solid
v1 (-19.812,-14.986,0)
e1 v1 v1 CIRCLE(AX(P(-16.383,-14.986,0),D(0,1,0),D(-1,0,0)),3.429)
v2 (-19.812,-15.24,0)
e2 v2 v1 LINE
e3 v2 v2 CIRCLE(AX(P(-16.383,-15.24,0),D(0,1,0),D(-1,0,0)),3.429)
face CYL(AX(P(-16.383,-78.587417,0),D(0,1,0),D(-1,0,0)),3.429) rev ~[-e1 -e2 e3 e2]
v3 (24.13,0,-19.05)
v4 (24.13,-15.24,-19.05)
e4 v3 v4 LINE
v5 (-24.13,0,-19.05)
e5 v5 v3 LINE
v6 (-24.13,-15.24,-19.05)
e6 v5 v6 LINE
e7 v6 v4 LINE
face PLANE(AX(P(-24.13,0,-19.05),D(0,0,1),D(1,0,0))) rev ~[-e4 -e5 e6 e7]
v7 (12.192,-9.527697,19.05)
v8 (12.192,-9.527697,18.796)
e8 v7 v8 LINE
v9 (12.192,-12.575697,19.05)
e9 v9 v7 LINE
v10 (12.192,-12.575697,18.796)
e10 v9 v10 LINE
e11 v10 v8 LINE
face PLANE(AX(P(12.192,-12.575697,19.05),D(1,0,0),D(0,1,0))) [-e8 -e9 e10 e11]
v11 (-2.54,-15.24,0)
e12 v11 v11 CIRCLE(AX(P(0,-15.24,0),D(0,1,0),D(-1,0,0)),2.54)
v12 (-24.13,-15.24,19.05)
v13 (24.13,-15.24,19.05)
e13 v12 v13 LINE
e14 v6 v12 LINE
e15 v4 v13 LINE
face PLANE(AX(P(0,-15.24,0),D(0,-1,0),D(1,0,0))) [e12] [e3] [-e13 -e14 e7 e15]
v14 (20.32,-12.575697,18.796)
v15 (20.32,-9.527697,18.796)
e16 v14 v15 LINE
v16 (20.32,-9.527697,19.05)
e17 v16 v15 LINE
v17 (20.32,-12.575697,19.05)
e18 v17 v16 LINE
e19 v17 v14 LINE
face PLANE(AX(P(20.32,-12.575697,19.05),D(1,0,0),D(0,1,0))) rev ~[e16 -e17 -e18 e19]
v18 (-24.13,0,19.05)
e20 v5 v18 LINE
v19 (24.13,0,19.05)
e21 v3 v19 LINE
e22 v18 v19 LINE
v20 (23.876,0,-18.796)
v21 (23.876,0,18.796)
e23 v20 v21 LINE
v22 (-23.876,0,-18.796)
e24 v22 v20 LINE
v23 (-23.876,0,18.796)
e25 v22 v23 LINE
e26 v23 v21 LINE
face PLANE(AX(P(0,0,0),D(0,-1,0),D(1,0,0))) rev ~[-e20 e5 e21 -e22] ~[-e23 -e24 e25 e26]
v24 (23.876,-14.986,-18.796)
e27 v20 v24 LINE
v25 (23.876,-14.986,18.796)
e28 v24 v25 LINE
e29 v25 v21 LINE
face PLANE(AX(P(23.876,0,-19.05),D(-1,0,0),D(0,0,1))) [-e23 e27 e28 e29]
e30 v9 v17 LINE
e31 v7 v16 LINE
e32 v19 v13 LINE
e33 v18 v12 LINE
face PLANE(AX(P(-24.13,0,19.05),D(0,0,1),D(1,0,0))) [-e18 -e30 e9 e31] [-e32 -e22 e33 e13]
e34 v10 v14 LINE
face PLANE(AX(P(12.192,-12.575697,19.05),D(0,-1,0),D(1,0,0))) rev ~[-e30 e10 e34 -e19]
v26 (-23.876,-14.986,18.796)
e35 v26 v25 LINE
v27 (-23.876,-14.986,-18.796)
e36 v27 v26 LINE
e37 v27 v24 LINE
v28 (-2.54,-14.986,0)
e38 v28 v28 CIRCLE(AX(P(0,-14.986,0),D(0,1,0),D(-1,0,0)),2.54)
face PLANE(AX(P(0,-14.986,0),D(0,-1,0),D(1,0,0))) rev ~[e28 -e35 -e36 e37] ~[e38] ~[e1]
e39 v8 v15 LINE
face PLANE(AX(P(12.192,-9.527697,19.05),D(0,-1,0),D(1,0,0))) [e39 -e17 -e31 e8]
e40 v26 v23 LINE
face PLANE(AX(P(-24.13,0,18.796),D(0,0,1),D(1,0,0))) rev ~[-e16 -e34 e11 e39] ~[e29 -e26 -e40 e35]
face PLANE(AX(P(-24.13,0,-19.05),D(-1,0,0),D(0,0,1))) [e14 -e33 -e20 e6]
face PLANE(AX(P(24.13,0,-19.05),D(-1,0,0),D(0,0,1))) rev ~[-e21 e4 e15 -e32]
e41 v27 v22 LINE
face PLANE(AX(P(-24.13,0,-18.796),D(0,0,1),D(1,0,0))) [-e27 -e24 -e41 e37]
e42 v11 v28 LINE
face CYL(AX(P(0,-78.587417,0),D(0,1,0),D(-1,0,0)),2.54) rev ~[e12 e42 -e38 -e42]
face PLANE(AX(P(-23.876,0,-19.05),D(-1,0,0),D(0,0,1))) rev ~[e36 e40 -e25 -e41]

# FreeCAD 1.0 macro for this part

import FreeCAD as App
import Part
import Sketcher
Q = App.Units.Quantity


def faces_at(feature, points):
    """Names of the faces that lie closest to the given points."""
    faces = feature.Shape.Faces
    near = lambda p: min(range(len(faces)), key=lambda i: faces[i].distToShape(Part.Vertex(*p))[0])
    return sorted({f"Face{near(p) + 1}" for p in points})


def add_polygon(sketch, points):
    """Adds a closed chain of lines whose ends are joined by coincident constraints."""
    first, n = sketch.GeometryCount, len(points)
    for a, b in zip(points, points[1:] + points[:1]):
        sketch.addGeometry(Part.LineSegment(App.Vector(*a, 0), App.Vector(*b, 0)), False)
    for i in range(n):
        sketch.addConstraint(Sketcher.Constraint("Coincident", first + i, 2, first + (i + 1) % n, 1))

doc = App.newDocument("Part")
params = doc.addObject("Spreadsheet::Sheet", "Params")
for row, (alias, value) in enumerate([
    ("sketch1_width", "1.9 in"),
    ("sketch1_height", "1.5 in"),
    ("pad1_length", "0.6 in"),
    ("thickness_wall", "0.01 in"),
    ("sketch2_diameter", "0.27 in"),
    ("hole_diameter", "0.27 in"),
    ("sketch3_diameter", "0.2 in"),
    ("hole2_diameter", "0.2 in"),
    ("sketch4_width", "0.32 in"),
    ("sketch4_height", "0.12 in"),
    ("pocket1_length", "1 in"),
], start=1):
    params.set(f"A{row}", alias)
    params.set(f"B{row}", "=" + value)
    params.setAlias(f"B{row}", alias)

body = doc.addObject("PartDesign::Body", "Body")

sketch1 = body.newObject("Sketcher::SketchObject", "Sketch")
sketch1.AttachmentSupport = (doc.getObject("XZ_Plane"), [""])
sketch1.MapMode = "FlatFace"
add_polygon(sketch1, [(-24, 19), (-24, -19), (24, -19), (24, 19)])
sketch1.addConstraint([
    Sketcher.Constraint("Vertical", 0),
    Sketcher.Constraint("Horizontal", 1),
    Sketcher.Constraint("Vertical", 2),
    Sketcher.Constraint("Horizontal", 3),
    Sketcher.Constraint("Symmetric", 0, 2, 2, 2, -1, 1),
    Sketcher.Constraint("DistanceX", 1, 1, 1, 2, Q("1.9 in")),
    Sketcher.Constraint("DistanceY", 0, 2, 0, 1, Q("1.5 in")),
])
sketch1.setExpression("Constraints[9]", "Params.sketch1_width")
sketch1.setExpression("Constraints[10]", "Params.sketch1_height")
pad1 = body.newObject("PartDesign::Pad", "Pad")
pad1.Profile = sketch1
pad1.setExpression("Length", "Params.pad1_length")
doc.recompute()

thickness = body.newObject("PartDesign::Thickness", "Thickness")
thickness.Base = (pad1, faces_at(pad1, [(0, 0, 0)]))
thickness.setExpression("Value", "Params.thickness_wall")
thickness.Reversed = True
thickness.Join = "Arc"

sketch2 = body.newObject("Sketcher::SketchObject", "Sketch001")
sketch2.AttachmentSupport = (doc.getObject("XZ_Plane"), [""])
sketch2.MapMode = "FlatFace"
sketch2.AttachmentOffset = App.Placement(App.Vector(0, 0, 0.6 * 25.4), App.Rotation())
sketch2.addGeometry(Part.Circle(App.Vector(-16.4, 0, 0), App.Vector(0, 0, 1), 3.4), False)
sketch2.addConstraint([
    Sketcher.Constraint("PointOnObject", 0, 3, -1),
    Sketcher.Constraint("Diameter", 0, Q("0.27 in")),
    Sketcher.Constraint("DistanceX", 0, 3, -1, 1, Q("0.645 in")),
])
sketch2.setExpression("Constraints[1]", "Params.sketch2_diameter")
doc.recompute()
hole = body.newObject("PartDesign::Hole", "Hole")
hole.Profile = sketch2
hole.ThreadType = "None"
hole.setExpression("Diameter", "Params.hole_diameter")
hole.DepthType = "ThroughAll"

sketch3 = body.newObject("Sketcher::SketchObject", "Sketch002")
sketch3.AttachmentSupport = (doc.getObject("XZ_Plane"), [""])
sketch3.MapMode = "FlatFace"
sketch3.AttachmentOffset = App.Placement(App.Vector(0, 0, 0.6 * 25.4), App.Rotation())
sketch3.addGeometry(Part.Circle(App.Vector(0, 0, 0), App.Vector(0, 0, 1), 2.5), False)
sketch3.addConstraint([
    Sketcher.Constraint("Coincident", 0, 3, -1, 1),
    Sketcher.Constraint("Diameter", 0, Q("0.2 in")),
])
sketch3.setExpression("Constraints[1]", "Params.sketch3_diameter")
doc.recompute()
hole2 = body.newObject("PartDesign::Hole", "Hole001")
hole2.Profile = sketch3
hole2.ThreadType = "None"
hole2.setExpression("Diameter", "Params.hole2_diameter")
hole2.DepthType = "ThroughAll"

sketch4 = body.newObject("Sketcher::SketchObject", "Sketch003")
sketch4.AttachmentSupport = (doc.getObject("XY_Plane"), [""])
sketch4.MapMode = "FlatFace"
sketch4.AttachmentOffset = App.Placement(App.Vector(0, 0, 0.75 * 25.4), App.Rotation())
add_polygon(sketch4, [(12.2, -9.5), (12.2, -12.6), (20.3, -12.6), (20.3, -9.5)])
sketch4.addConstraint([
    Sketcher.Constraint("Vertical", 0),
    Sketcher.Constraint("Horizontal", 1),
    Sketcher.Constraint("Vertical", 2),
    Sketcher.Constraint("Horizontal", 3),
    Sketcher.Constraint("DistanceX", 1, 1, 1, 2, Q("0.32 in")),
    Sketcher.Constraint("DistanceY", 0, 2, 0, 1, Q("0.12 in")),
    Sketcher.Constraint("DistanceX", -1, 1, 1, 2, Q("0.8 in")),
    Sketcher.Constraint("DistanceY", 0, 2, -1, 1, 12.575697),
])
sketch4.setExpression("Constraints[8]", "Params.sketch4_width")
sketch4.setExpression("Constraints[9]", "Params.sketch4_height")
pocket1 = body.newObject("PartDesign::Pocket", "Pocket")
pocket1.Profile = sketch4
pocket1.setExpression("Length", "Params.pocket1_length")

doc.recompute()
